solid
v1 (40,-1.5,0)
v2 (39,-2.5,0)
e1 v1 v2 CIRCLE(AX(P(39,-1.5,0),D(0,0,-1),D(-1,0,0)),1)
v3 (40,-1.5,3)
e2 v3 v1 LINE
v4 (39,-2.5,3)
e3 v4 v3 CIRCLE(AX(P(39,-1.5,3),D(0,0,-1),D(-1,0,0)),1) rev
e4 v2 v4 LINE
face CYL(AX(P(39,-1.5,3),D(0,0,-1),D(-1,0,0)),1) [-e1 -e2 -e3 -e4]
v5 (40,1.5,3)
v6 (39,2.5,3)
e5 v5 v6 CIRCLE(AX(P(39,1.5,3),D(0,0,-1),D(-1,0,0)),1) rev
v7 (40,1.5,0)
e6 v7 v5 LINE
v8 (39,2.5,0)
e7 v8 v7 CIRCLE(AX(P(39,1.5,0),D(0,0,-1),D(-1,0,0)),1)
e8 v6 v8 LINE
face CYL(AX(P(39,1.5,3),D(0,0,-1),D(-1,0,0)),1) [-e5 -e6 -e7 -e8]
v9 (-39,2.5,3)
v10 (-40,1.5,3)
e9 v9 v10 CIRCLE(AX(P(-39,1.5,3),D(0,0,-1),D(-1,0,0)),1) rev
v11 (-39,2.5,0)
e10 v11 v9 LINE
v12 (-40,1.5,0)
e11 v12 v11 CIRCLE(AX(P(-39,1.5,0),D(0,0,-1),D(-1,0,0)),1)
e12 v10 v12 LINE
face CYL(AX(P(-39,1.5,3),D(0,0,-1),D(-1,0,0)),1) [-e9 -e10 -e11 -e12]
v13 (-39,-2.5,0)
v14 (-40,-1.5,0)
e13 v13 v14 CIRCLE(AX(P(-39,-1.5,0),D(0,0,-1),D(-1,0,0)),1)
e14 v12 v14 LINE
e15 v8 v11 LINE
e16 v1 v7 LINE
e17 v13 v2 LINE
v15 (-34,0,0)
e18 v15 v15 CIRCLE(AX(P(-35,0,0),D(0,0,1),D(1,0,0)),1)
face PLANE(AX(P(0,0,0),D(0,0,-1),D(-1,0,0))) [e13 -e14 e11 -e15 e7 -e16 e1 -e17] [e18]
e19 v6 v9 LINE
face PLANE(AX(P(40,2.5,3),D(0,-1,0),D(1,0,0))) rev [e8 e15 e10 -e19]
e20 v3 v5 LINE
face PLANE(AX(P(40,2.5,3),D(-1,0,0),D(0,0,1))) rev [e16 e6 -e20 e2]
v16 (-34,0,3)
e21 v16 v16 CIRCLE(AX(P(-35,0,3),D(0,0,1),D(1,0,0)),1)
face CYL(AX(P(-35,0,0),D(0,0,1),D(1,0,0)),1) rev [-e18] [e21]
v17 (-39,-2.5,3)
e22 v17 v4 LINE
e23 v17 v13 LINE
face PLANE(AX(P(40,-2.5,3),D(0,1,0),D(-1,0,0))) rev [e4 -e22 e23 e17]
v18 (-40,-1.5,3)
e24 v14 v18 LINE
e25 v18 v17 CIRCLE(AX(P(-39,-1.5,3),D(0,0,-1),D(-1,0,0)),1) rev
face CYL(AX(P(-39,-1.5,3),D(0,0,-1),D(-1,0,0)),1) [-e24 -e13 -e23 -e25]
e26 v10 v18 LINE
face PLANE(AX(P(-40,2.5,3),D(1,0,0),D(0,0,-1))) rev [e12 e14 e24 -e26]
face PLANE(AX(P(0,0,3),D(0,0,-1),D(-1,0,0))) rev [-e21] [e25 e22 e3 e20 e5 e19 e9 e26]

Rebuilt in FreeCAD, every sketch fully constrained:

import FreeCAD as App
import Part
import Sketcher

V = App.Vector


def edges_at(feature, points):
    """Names of the edges that pass closest to the given points."""
    edges = feature.Shape.Edges
    near = lambda p: min(range(len(edges)), key=lambda i: edges[i].distToShape(Part.Vertex(*p))[0])
    return sorted({f"Edge{near(p) + 1}" for p in points})

doc = App.newDocument("Part")
body = doc.addObject("PartDesign::Body", "Body")

# Sketch on XY plane
sketch1 = body.newObject("Sketcher::SketchObject", "Sketch")
sketch1.AttachmentSupport = (doc.getObject("XY_Plane"), [""])
sketch1.MapMode = "FlatFace"
sketch1.addGeometry(Part.LineSegment(V(-40, 2, 0), V(-40, -2, 0)), False)
sketch1.addGeometry(Part.LineSegment(V(-40, -2, 0), V(40, -2, 0)), False)
sketch1.addGeometry(Part.LineSegment(V(40, -2, 0), V(40, 2, 0)), False)
sketch1.addGeometry(Part.LineSegment(V(40, 2, 0), V(-40, 2, 0)), False)
sketch1.addConstraint(Sketcher.Constraint("Coincident", 0, 2, 1, 1))
sketch1.addConstraint(Sketcher.Constraint("Coincident", 1, 2, 2, 1))
sketch1.addConstraint(Sketcher.Constraint("Coincident", 2, 2, 3, 1))
sketch1.addConstraint(Sketcher.Constraint("Coincident", 3, 2, 0, 1))
sketch1.addConstraint(Sketcher.Constraint("Vertical", 0))
sketch1.addConstraint(Sketcher.Constraint("Horizontal", 1))
sketch1.addConstraint(Sketcher.Constraint("Vertical", 2))
sketch1.addConstraint(Sketcher.Constraint("Horizontal", 3))
sketch1.addConstraint(Sketcher.Constraint("Symmetric", 0, 2, 2, 2, -1, 1))
sketch1.addConstraint(Sketcher.Constraint("DistanceX", 1, 1, 1, 2, 80.0))
sketch1.addConstraint(Sketcher.Constraint("DistanceY", 0, 2, 0, 1, 5.0))
pad1 = body.newObject("PartDesign::Pad", "Pad")
pad1.Profile = sketch1
pad1.Length = 3

# Sketch on XY plane
sketch2 = body.newObject("Sketcher::SketchObject", "Sketch001")
sketch2.AttachmentSupport = (doc.getObject("XY_Plane"), [""])
sketch2.MapMode = "FlatFace"
sketch2.AttachmentOffset = App.Placement(V(0, 0, 3), App.Rotation())
sketch2.addGeometry(Part.Circle(V(-35, 0, 0), V(0, 0, 1), 1), False)
sketch2.addConstraint(Sketcher.Constraint("PointOnObject", 0, 3, -1))
sketch2.addConstraint(Sketcher.Constraint("Diameter", 0, 2.0))
sketch2.addConstraint(Sketcher.Constraint("DistanceX", 0, 3, -1, 1, 35.0))
pocket1 = body.newObject("PartDesign::Pocket", "Pocket")
pocket1.Profile = sketch2
pocket1.Type = "ThroughAll"
doc.recompute()

fillet = body.newObject("PartDesign::Fillet", "Fillet")
fillet.Base = (pocket1, edges_at(pocket1, [
    (-40, 2.5, 1.5),
    (40, 2.5, 1.5),
    (40, -2.5, 1.5),
    (-40, -2.5, 1.5),
]))
fillet.Radius = 1

doc.recompute()
